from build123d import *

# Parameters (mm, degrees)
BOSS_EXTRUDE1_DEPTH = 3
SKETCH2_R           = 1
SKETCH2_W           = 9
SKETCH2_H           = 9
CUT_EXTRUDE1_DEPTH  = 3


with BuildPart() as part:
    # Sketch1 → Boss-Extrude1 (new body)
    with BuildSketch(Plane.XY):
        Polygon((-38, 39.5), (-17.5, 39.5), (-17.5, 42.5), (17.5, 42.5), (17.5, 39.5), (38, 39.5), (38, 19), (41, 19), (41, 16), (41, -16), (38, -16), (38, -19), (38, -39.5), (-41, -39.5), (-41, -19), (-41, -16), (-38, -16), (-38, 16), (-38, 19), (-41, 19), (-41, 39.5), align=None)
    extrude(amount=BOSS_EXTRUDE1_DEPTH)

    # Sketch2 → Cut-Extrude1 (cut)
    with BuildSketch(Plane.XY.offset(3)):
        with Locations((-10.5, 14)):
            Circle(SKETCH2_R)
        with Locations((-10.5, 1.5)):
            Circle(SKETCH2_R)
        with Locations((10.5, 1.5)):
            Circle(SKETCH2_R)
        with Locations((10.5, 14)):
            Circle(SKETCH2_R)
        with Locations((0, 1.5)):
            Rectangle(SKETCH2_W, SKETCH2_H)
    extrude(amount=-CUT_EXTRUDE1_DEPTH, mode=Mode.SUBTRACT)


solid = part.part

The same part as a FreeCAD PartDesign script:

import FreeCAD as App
import Part
import Sketcher


def add_polygon(sketch, points):
    """Adds a closed chain of lines whose ends are joined by coincident constraints."""
    first, n = sketch.GeometryCount, len(points)
    for a, b in zip(points, points[1:] + points[:1]):
        sketch.addGeometry(Part.LineSegment(App.Vector(*a, 0), App.Vector(*b, 0)), False)
    for i in range(n):
        sketch.addConstraint(Sketcher.Constraint("Coincident", first + i, 2, first + (i + 1) % n, 1))

doc = App.newDocument("Part")
params = doc.addObject("Spreadsheet::Sheet", "Params")
for row, (alias, value) in enumerate([
    ("sketch1_width", "3 mm"),
    ("sketch1_width2", "79 mm"),
    ("sketch1_width3", "35 mm"),
    ("pad1_length", "3 mm"),
    ("sketch2_diameter", "2 mm"),
    ("sketch2_width", "9 mm"),
    ("pocket1_length", "3 mm"),
], start=1):
    params.set(f"A{row}", alias)
    params.set(f"B{row}", "=" + value)
    params.setAlias(f"B{row}", alias)

body = doc.addObject("PartDesign::Body", "Body")

sketch1 = body.newObject("Sketcher::SketchObject", "Sketch")
sketch1.AttachmentSupport = (doc.getObject("XY_Plane"), [""])
sketch1.MapMode = "FlatFace"
add_polygon(sketch1, [(-17.5, 39.5), (-41, 39.5), (-41, 19), (-38, 19), (-38, -16), (-41, -16), (-41, -39.5), (38, -39.5), (38, -16), (41, -16), (41, 19), (38, 19), (38, 39.5), (17.5, 39.5), (17.5, 42.5), (-17.5, 42.5)])
sketch1.addConstraint([
    Sketcher.Constraint("Horizontal", 0),
    Sketcher.Constraint("Vertical", 1),
    Sketcher.Constraint("Horizontal", 2),
    Sketcher.Constraint("Vertical", 3),
    Sketcher.Constraint("Horizontal", 4),
    Sketcher.Constraint("Vertical", 5),
    Sketcher.Constraint("Horizontal", 6),
    Sketcher.Constraint("Vertical", 7),
    Sketcher.Constraint("Horizontal", 8),
    Sketcher.Constraint("Vertical", 9),
    Sketcher.Constraint("Horizontal", 10),
    Sketcher.Constraint("Vertical", 11),
    Sketcher.Constraint("Horizontal", 12),
    Sketcher.Constraint("Vertical", 13),
    Sketcher.Constraint("Horizontal", 14),
    Sketcher.Constraint("Vertical", 15),
    Sketcher.Constraint("Symmetric", 3, 2, 7, 2, -2),
    Sketcher.Constraint("Symmetric", 1, 2, 9, 2, -2),
    Sketcher.Constraint("Symmetric", 12, 2, 15, 2, -2),
    Sketcher.Constraint("Symmetric", 0, 2, 5, 2, -1),
    Sketcher.Constraint("Vertical", 7, 2, 10, 2),
    Sketcher.Constraint("Equal", 12, 1),
    Sketcher.Constraint("Equal", 14, 3),
    Sketcher.Constraint("Equal", 0, 5),
    Sketcher.Constraint("Equal", 10, 13),
    Sketcher.Constraint("DistanceX", 2, 1, 2, 2, 3.0),
    Sketcher.Constraint("DistanceX", 6, 1, 6, 2, 79.0),
    Sketcher.Constraint("DistanceX", 14, 2, 14, 1, 35.0),
])
sketch1.setExpression("Constraints[41]", "Params.sketch1_width")
sketch1.setExpression("Constraints[42]", "Params.sketch1_width2")
sketch1.setExpression("Constraints[43]", "Params.sketch1_width3")
pad1 = body.newObject("PartDesign::Pad", "Pad")
pad1.Profile = sketch1
pad1.setExpression("Length", "Params.pad1_length")

sketch2 = body.newObject("Sketcher::SketchObject", "Sketch001")
sketch2.AttachmentSupport = (doc.getObject("XY_Plane"), [""])
sketch2.MapMode = "FlatFace"
sketch2.AttachmentOffset = App.Placement(App.Vector(0, 0, 3), App.Rotation())
sketch2.addGeometry(Part.Circle(App.Vector(-10.5, 14, 0), App.Vector(0, 0, 1), 1), False)
sketch2.addGeometry(Part.Circle(App.Vector(-10.5, 1.5, 0), App.Vector(0, 0, 1), 1), False)
sketch2.addGeometry(Part.Circle(App.Vector(10.5, 1.5, 0), App.Vector(0, 0, 1), 1), False)
sketch2.addGeometry(Part.Circle(App.Vector(10.5, 14, 0), App.Vector(0, 0, 1), 1), False)
add_polygon(sketch2, [(-4.5, 6), (-4.5, -3), (4.5, -3), (4.5, 6)])
sketch2.addConstraint([
    Sketcher.Constraint("Vertical", 4),
    Sketcher.Constraint("Horizontal", 5),
    Sketcher.Constraint("Vertical", 6),
    Sketcher.Constraint("Horizontal", 7),
    Sketcher.Constraint("Equal", 0, 1),
    Sketcher.Constraint("Equal", 1, 2),
    Sketcher.Constraint("Equal", 2, 3),
    Sketcher.Constraint("Symmetric", 1, 3, 2, 3, -2),
    Sketcher.Constraint("Symmetric", 0, 3, 3, 3, -2),
    Sketcher.Constraint("Vertical", 0, 3, 1, 3),
    Sketcher.Constraint("Equal", 7, 4),
    Sketcher.Constraint("Diameter", 0, 2.0),
    Sketcher.Constraint("DistanceX", 5, 1, 5, 2, 9.0),
    Sketcher.Constraint("DistanceY", -1, 1, 0, 3, 14.0),
    Sketcher.Constraint("DistanceY", 4, 2, -1, 1, 3.0),
    Sketcher.Constraint("DistanceX", 1, 3, 2, 3, 21.0),
    Sketcher.Constraint("DistanceX", 1, 3, 4, 2, 6.0),
    Sketcher.Constraint("DistanceY", -1, 1, 1, 3, 1.5),
])
sketch2.setExpression("Constraints[15]", "Params.sketch2_diameter")
sketch2.setExpression("Constraints[16]", "Params.sketch2_width")
pocket1 = body.newObject("PartDesign::Pocket", "Pocket")
pocket1.Profile = sketch2
pocket1.setExpression("Length", "Params.pocket1_length")

doc.recompute()
